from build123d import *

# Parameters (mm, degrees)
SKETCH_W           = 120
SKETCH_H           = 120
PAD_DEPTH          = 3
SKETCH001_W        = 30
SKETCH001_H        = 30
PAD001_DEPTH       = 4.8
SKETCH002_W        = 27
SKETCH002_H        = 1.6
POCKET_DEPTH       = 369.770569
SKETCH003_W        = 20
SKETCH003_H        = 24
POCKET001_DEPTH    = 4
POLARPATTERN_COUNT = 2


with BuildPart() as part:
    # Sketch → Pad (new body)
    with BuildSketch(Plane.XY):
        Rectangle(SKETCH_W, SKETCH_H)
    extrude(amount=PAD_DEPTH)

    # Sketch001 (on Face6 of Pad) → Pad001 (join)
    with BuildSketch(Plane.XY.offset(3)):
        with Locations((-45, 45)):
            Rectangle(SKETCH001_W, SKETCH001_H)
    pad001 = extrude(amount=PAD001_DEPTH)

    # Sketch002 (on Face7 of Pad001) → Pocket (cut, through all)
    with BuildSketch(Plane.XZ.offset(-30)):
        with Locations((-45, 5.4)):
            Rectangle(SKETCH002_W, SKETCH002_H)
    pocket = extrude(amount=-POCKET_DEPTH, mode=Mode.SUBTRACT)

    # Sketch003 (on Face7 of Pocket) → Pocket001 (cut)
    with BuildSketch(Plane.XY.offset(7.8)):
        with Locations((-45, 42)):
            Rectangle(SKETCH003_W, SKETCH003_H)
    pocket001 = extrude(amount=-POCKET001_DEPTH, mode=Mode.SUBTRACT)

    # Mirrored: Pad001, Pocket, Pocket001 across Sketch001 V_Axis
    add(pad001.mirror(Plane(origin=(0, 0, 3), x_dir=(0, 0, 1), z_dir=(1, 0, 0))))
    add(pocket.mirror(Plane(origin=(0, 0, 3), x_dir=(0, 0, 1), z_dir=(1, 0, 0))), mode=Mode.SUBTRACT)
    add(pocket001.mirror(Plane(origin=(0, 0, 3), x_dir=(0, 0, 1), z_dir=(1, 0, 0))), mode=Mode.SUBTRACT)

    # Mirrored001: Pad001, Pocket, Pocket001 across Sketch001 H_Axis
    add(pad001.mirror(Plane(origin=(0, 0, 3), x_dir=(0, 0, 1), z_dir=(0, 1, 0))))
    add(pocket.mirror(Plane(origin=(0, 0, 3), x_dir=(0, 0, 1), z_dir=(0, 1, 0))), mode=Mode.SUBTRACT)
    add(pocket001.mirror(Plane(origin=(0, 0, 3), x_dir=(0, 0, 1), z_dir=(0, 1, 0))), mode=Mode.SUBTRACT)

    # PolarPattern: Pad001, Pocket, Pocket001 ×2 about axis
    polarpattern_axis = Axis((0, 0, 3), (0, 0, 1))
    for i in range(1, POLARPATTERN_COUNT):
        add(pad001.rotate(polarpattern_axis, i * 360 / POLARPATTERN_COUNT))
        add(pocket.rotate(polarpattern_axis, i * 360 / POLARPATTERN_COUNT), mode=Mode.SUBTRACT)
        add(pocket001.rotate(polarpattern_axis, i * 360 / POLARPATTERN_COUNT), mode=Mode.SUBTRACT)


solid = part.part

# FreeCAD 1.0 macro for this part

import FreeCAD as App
import Part
import Sketcher
Q = App.Units.Quantity


def add_polygon(sketch, points):
    """Adds a closed chain of lines whose ends are joined by coincident constraints."""
    first, n = sketch.GeometryCount, len(points)
    for a, b in zip(points, points[1:] + points[:1]):
        sketch.addGeometry(Part.LineSegment(App.Vector(*a, 0), App.Vector(*b, 0)), False)
    for i in range(n):
        sketch.addConstraint(Sketcher.Constraint("Coincident", first + i, 2, first + (i + 1) % n, 1))

doc = App.newDocument("Part")
params = doc.addObject("Spreadsheet::Sheet", "Params")
for row, (alias, value) in enumerate([
    ("sketch1_width", "120 mm"),
    ("pad1_length", "3 mm"),
    ("sketch2_width", "30 mm"),
    ("pad2_length", "4.8 mm"),
    ("sketch3_width", "27 mm"),
    ("sketch3_height", "1.6 mm"),
    ("sketch4_width", "20 mm"),
    ("sketch4_height", "24 mm"),
    ("pocket2_length", "4 mm"),
], start=1):
    params.set(f"A{row}", alias)
    params.set(f"B{row}", "=" + value)
    params.setAlias(f"B{row}", alias)

body = doc.addObject("PartDesign::Body", "Body")

sketch1 = body.newObject("Sketcher::SketchObject", "Sketch")
sketch1.AttachmentSupport = (doc.getObject("XY_Plane"), [""])
sketch1.MapMode = "FlatFace"
add_polygon(sketch1, [(-60, 60), (-60, -60), (60, -60), (60, 60)])
sketch1.addConstraint(Sketcher.Constraint("Vertical", 0))
sketch1.addConstraint(Sketcher.Constraint("Horizontal", 1))
sketch1.addConstraint(Sketcher.Constraint("Vertical", 2))
sketch1.addConstraint(Sketcher.Constraint("Horizontal", 3))
sketch1.addConstraint(Sketcher.Constraint("Symmetric", 0, 2, 2, 2, -1, 1))
sketch1.addConstraint(Sketcher.Constraint("Equal", 3, 0))
sketch1.addConstraint(Sketcher.Constraint("DistanceX", 1, 1, 1, 2, Q("120 mm")))
sketch1.setExpression("Constraints[10]", "Params.sketch1_width")
pad1 = body.newObject("PartDesign::Pad", "Pad")
pad1.Profile = sketch1
pad1.setExpression("Length", "Params.pad1_length")

sketch2 = body.newObject("Sketcher::SketchObject", "Sketch001")
sketch2.AttachmentSupport = (doc.getObject("XY_Plane"), [""])
sketch2.MapMode = "FlatFace"
sketch2.AttachmentOffset = App.Placement(App.Vector(0, 0, 3), App.Rotation())
add_polygon(sketch2, [(-60, 60), (-60, 30), (-30, 30), (-30, 60)])
sketch2.addConstraint(Sketcher.Constraint("Vertical", 0))
sketch2.addConstraint(Sketcher.Constraint("Horizontal", 1))
sketch2.addConstraint(Sketcher.Constraint("Vertical", 2))
sketch2.addConstraint(Sketcher.Constraint("Horizontal", 3))
sketch2.addConstraint(Sketcher.Constraint("Equal", 3, 0))
sketch2.addConstraint(Sketcher.Constraint("DistanceX", 1, 1, 1, 2, Q("30 mm")))
sketch2.addConstraint(Sketcher.Constraint("DistanceX", 0, 2, -1, 1, Q("60 mm")))
sketch2.addConstraint(Sketcher.Constraint("DistanceY", -1, 1, 0, 2, Q("30 mm")))
sketch2.setExpression("Constraints[9]", "Params.sketch2_width")
pad2 = body.newObject("PartDesign::Pad", "Pad001")
pad2.Profile = sketch2
pad2.setExpression("Length", "Params.pad2_length")

sketch3 = body.newObject("Sketcher::SketchObject", "Sketch002")
sketch3.AttachmentSupport = (doc.getObject("XZ_Plane"), [""])
sketch3.MapMode = "FlatFace"
sketch3.AttachmentOffset = App.Placement(App.Vector(0, 0, -30), App.Rotation())
add_polygon(sketch3, [(-58.5, 6.2), (-58.5, 4.6), (-31.5, 4.6), (-31.5, 6.2)])
sketch3.addConstraint(Sketcher.Constraint("Vertical", 0))
sketch3.addConstraint(Sketcher.Constraint("Horizontal", 1))
sketch3.addConstraint(Sketcher.Constraint("Vertical", 2))
sketch3.addConstraint(Sketcher.Constraint("Horizontal", 3))
sketch3.addConstraint(Sketcher.Constraint("DistanceX", 1, 1, 1, 2, Q("27 mm")))
sketch3.addConstraint(Sketcher.Constraint("DistanceY", 0, 2, 0, 1, Q("1.6 mm")))
sketch3.addConstraint(Sketcher.Constraint("DistanceX", 0, 2, -1, 1, Q("58.5 mm")))
sketch3.addConstraint(Sketcher.Constraint("DistanceY", -1, 1, 0, 2, Q("4.6 mm")))
sketch3.setExpression("Constraints[8]", "Params.sketch3_width")
sketch3.setExpression("Constraints[9]", "Params.sketch3_height")
pocket1 = body.newObject("PartDesign::Pocket", "Pocket")
pocket1.Profile = sketch3
pocket1.Type = "ThroughAll"

sketch4 = body.newObject("Sketcher::SketchObject", "Sketch003")
sketch4.AttachmentSupport = (doc.getObject("XY_Plane"), [""])
sketch4.MapMode = "FlatFace"
sketch4.AttachmentOffset = App.Placement(App.Vector(0, 0, 7.8), App.Rotation())
add_polygon(sketch4, [(-55, 54), (-55, 30), (-35, 30), (-35, 54)])
sketch4.addConstraint(Sketcher.Constraint("Vertical", 0))
sketch4.addConstraint(Sketcher.Constraint("Horizontal", 1))
sketch4.addConstraint(Sketcher.Constraint("Vertical", 2))
sketch4.addConstraint(Sketcher.Constraint("Horizontal", 3))
sketch4.addConstraint(Sketcher.Constraint("DistanceX", 1, 1, 1, 2, Q("20 mm")))
sketch4.addConstraint(Sketcher.Constraint("DistanceY", 0, 2, 0, 1, Q("24 mm")))
sketch4.addConstraint(Sketcher.Constraint("DistanceX", 0, 2, -1, 1, Q("55 mm")))
sketch4.addConstraint(Sketcher.Constraint("DistanceY", -1, 1, 0, 2, Q("30 mm")))
sketch4.setExpression("Constraints[8]", "Params.sketch4_width")
sketch4.setExpression("Constraints[9]", "Params.sketch4_height")
pocket2 = body.newObject("PartDesign::Pocket", "Pocket001")
pocket2.Profile = sketch4
pocket2.setExpression("Length", "Params.pocket2_length")
doc.recompute()

mirrored = body.newObject("PartDesign::Mirrored", "Mirrored")
mirrored.Originals = [pad2, pocket1, pocket2]
mirrored.MirrorPlane = (doc.getObject("YZ_Plane"), [""])
body.Tip = mirrored
doc.recompute()

mirrored2 = body.newObject("PartDesign::Mirrored", "Mirrored001")
mirrored2.Originals = [pad2, pocket1, pocket2]
mirrored2.MirrorPlane = (doc.getObject("XZ_Plane"), [""])
body.Tip = mirrored2
doc.recompute()

polarpattern = body.newObject("PartDesign::PolarPattern", "PolarPattern")
polarpattern.Originals = [pad2, pocket1, pocket2]
polarpattern.Axis = (doc.getObject("Z_Axis"), [""])
polarpattern.Angle = 360
polarpattern.Occurrences = 2
body.Tip = polarpattern

doc.recompute()
